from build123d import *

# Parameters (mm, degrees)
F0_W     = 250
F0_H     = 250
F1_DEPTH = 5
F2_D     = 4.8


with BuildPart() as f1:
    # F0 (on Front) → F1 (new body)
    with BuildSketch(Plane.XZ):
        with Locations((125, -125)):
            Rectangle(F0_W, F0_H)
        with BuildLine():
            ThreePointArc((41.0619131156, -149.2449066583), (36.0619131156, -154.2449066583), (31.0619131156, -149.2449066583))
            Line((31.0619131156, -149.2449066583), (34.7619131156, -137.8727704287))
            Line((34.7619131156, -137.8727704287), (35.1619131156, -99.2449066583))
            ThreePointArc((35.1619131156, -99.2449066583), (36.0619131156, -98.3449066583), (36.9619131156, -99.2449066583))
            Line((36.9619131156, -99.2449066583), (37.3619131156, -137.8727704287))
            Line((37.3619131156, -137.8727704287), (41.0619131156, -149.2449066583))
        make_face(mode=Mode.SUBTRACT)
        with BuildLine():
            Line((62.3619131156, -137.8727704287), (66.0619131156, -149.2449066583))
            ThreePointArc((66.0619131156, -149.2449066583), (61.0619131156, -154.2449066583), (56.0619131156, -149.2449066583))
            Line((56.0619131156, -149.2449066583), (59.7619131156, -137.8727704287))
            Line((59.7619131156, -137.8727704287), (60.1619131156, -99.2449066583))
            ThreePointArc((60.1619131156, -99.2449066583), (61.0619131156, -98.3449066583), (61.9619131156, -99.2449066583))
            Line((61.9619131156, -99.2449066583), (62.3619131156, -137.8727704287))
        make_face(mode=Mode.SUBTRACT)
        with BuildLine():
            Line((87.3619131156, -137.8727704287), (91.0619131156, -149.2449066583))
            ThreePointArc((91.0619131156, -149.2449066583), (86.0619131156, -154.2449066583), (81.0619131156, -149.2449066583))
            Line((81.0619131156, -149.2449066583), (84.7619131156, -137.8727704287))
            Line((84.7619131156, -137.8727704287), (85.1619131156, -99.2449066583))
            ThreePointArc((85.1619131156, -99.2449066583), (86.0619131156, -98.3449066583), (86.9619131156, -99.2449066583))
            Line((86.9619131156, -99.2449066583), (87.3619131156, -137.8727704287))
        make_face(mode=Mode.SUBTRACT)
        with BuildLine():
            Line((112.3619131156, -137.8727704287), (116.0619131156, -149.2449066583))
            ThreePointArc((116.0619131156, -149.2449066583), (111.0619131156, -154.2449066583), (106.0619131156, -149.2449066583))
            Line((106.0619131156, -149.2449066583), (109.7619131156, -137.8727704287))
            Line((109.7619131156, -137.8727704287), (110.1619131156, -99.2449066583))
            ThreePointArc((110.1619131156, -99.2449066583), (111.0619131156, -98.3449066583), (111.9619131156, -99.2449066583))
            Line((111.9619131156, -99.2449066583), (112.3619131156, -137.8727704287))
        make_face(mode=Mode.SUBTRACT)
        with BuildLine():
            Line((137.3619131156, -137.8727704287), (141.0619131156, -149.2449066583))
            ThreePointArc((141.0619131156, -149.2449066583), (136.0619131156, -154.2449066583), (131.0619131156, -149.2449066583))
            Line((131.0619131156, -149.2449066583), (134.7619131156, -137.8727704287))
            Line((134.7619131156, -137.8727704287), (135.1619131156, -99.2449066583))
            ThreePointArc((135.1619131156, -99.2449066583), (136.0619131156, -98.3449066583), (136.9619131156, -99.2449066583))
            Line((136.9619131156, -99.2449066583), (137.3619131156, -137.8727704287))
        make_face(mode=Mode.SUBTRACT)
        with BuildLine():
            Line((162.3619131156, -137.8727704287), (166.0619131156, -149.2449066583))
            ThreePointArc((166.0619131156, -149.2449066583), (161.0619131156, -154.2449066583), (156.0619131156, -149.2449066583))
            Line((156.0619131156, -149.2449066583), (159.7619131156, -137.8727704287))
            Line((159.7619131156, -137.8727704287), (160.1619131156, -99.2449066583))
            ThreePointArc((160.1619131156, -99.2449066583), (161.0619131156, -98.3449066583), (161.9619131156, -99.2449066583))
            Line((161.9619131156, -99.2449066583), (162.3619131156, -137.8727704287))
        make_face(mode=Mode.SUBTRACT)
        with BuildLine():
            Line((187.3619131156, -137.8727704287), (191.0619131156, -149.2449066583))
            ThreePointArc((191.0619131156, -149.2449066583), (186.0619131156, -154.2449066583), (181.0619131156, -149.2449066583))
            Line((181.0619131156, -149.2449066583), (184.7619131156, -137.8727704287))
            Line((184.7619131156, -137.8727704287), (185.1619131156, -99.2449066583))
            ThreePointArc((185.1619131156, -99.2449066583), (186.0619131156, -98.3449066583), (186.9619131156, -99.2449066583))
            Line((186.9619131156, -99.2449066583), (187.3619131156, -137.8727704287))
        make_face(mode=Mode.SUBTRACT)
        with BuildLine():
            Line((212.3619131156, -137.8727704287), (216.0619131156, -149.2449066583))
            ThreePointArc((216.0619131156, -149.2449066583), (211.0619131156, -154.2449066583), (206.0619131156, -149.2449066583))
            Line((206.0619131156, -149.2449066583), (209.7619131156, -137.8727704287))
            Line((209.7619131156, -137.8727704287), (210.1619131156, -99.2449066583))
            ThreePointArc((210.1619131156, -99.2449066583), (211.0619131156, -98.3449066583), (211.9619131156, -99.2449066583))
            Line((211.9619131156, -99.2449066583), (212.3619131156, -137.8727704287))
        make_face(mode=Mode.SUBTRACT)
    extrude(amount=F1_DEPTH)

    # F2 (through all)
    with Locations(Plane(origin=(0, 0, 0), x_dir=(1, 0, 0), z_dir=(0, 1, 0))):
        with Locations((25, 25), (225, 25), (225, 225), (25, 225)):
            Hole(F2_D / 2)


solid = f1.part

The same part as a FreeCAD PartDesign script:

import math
import FreeCAD as App
import Part
import Sketcher
from FreeCAD import Vector
Q = App.Units.Quantity


def add_polygon(sketch, points):
    """Adds a closed chain of lines whose ends are joined by coincident constraints."""
    first, n = sketch.GeometryCount, len(points)
    for a, b in zip(points, points[1:] + points[:1]):
        sketch.addGeometry(Part.LineSegment(App.Vector(*a, 0), App.Vector(*b, 0)), False)
    for i in range(n):
        sketch.addConstraint(Sketcher.Constraint("Coincident", first + i, 2, first + (i + 1) % n, 1))

doc = App.newDocument("Part")
body = doc.addObject("PartDesign::Body", "Body")

sketch1 = body.newObject("Sketcher::SketchObject", "Sketch")
sketch1.AttachmentSupport = (doc.getObject("XZ_Plane"), [""])
sketch1.MapMode = "FlatFace"
add_polygon(sketch1, [(0, 0), (0, -250), (250, -250), (250, 0)])
sketch1.addGeometry(Part.LineSegment(Vector(37.4, -137.9, 0), Vector(41.1, -149.2, 0)), False)
sketch1.addGeometry(Part.ArcOfCircle(Part.Circle(Vector(36.1, -149.2, 0), Vector(0, 0, 1), 5), math.radians(180), math.radians(360)), False)
sketch1.addGeometry(Part.LineSegment(Vector(31.1, -149.2, 0), Vector(34.8, -137.9, 0)), False)
sketch1.addGeometry(Part.LineSegment(Vector(34.8, -137.9, 0), Vector(35.2, -99.2, 0)), False)
sketch1.addGeometry(Part.ArcOfCircle(Part.Circle(Vector(36.1, -99.2, 0), Vector(0, 0, 1), 0.9), math.radians(0), math.radians(180)), False)
sketch1.addGeometry(Part.LineSegment(Vector(37, -99.2, 0), Vector(37.4, -137.9, 0)), False)
sketch1.addGeometry(Part.LineSegment(Vector(137, -99.2, 0), Vector(137.4, -137.9, 0)), False)
sketch1.addGeometry(Part.LineSegment(Vector(137.4, -137.9, 0), Vector(141.1, -149.2, 0)), False)
sketch1.addGeometry(Part.ArcOfCircle(Part.Circle(Vector(136.1, -149.2, 0), Vector(0, 0, 1), 5), math.radians(180), math.radians(360)), False)
sketch1.addGeometry(Part.LineSegment(Vector(131.1, -149.2, 0), Vector(134.8, -137.9, 0)), False)
sketch1.addGeometry(Part.LineSegment(Vector(134.8, -137.9, 0), Vector(135.2, -99.2, 0)), False)
sketch1.addGeometry(Part.ArcOfCircle(Part.Circle(Vector(136.1, -99.2, 0), Vector(0, 0, 1), 0.9), math.radians(0), math.radians(180)), False)
sketch1.addGeometry(Part.LineSegment(Vector(162, -99.2, 0), Vector(162.4, -137.9, 0)), False)
sketch1.addGeometry(Part.LineSegment(Vector(162.4, -137.9, 0), Vector(166.1, -149.2, 0)), False)
sketch1.addGeometry(Part.ArcOfCircle(Part.Circle(Vector(161.1, -149.2, 0), Vector(0, 0, 1), 5), math.radians(180), math.radians(360)), False)
sketch1.addGeometry(Part.LineSegment(Vector(156.1, -149.2, 0), Vector(159.8, -137.9, 0)), False)
sketch1.addGeometry(Part.LineSegment(Vector(159.8, -137.9, 0), Vector(160.2, -99.2, 0)), False)
sketch1.addGeometry(Part.ArcOfCircle(Part.Circle(Vector(161.1, -99.2, 0), Vector(0, 0, 1), 0.9), math.radians(0), math.radians(180)), False)
sketch1.addGeometry(Part.LineSegment(Vector(187, -99.2, 0), Vector(187.4, -137.9, 0)), False)
sketch1.addGeometry(Part.LineSegment(Vector(187.4, -137.9, 0), Vector(191.1, -149.2, 0)), False)
sketch1.addGeometry(Part.ArcOfCircle(Part.Circle(Vector(186.1, -149.2, 0), Vector(0, 0, 1), 5), math.radians(180), math.radians(360)), False)
sketch1.addGeometry(Part.LineSegment(Vector(181.1, -149.2, 0), Vector(184.8, -137.9, 0)), False)
sketch1.addGeometry(Part.LineSegment(Vector(184.8, -137.9, 0), Vector(185.2, -99.2, 0)), False)
sketch1.addGeometry(Part.ArcOfCircle(Part.Circle(Vector(186.1, -99.2, 0), Vector(0, 0, 1), 0.9), math.radians(0), math.radians(180)), False)
sketch1.addGeometry(Part.LineSegment(Vector(212, -99.2, 0), Vector(212.4, -137.9, 0)), False)
sketch1.addGeometry(Part.LineSegment(Vector(212.4, -137.9, 0), Vector(216.1, -149.2, 0)), False)
sketch1.addGeometry(Part.ArcOfCircle(Part.Circle(Vector(211.1, -149.2, 0), Vector(0, 0, 1), 5), math.radians(180), math.radians(360)), False)
sketch1.addGeometry(Part.LineSegment(Vector(206.1, -149.2, 0), Vector(209.8, -137.9, 0)), False)
sketch1.addGeometry(Part.LineSegment(Vector(209.8, -137.9, 0), Vector(210.2, -99.2, 0)), False)
sketch1.addGeometry(Part.ArcOfCircle(Part.Circle(Vector(211.1, -99.2, 0), Vector(0, 0, 1), 0.9), math.radians(0), math.radians(180)), False)
sketch1.addGeometry(Part.LineSegment(Vector(62, -99.2, 0), Vector(62.4, -137.9, 0)), False)
sketch1.addGeometry(Part.LineSegment(Vector(62.4, -137.9, 0), Vector(66.1, -149.2, 0)), False)
sketch1.addGeometry(Part.ArcOfCircle(Part.Circle(Vector(61.1, -149.2, 0), Vector(0, 0, 1), 5), math.radians(180), math.radians(360)), False)
sketch1.addGeometry(Part.LineSegment(Vector(56.1, -149.2, 0), Vector(59.8, -137.9, 0)), False)
sketch1.addGeometry(Part.LineSegment(Vector(59.8, -137.9, 0), Vector(60.2, -99.2, 0)), False)
sketch1.addGeometry(Part.ArcOfCircle(Part.Circle(Vector(61.1, -99.2, 0), Vector(0, 0, 1), 0.9), math.radians(0), math.radians(180)), False)
sketch1.addGeometry(Part.LineSegment(Vector(87, -99.2, 0), Vector(87.4, -137.9, 0)), False)
sketch1.addGeometry(Part.LineSegment(Vector(87.4, -137.9, 0), Vector(91.1, -149.2, 0)), False)
sketch1.addGeometry(Part.ArcOfCircle(Part.Circle(Vector(86.1, -149.2, 0), Vector(0, 0, 1), 5), math.radians(180), math.radians(360)), False)
sketch1.addGeometry(Part.LineSegment(Vector(81.1, -149.2, 0), Vector(84.8, -137.9, 0)), False)
sketch1.addGeometry(Part.LineSegment(Vector(84.8, -137.9, 0), Vector(85.2, -99.2, 0)), False)
sketch1.addGeometry(Part.ArcOfCircle(Part.Circle(Vector(86.1, -99.2, 0), Vector(0, 0, 1), 0.9), math.radians(0), math.radians(180)), False)
sketch1.addGeometry(Part.LineSegment(Vector(112, -99.2, 0), Vector(112.4, -137.9, 0)), False)
sketch1.addGeometry(Part.LineSegment(Vector(112.4, -137.9, 0), Vector(116.1, -149.2, 0)), False)
sketch1.addGeometry(Part.ArcOfCircle(Part.Circle(Vector(111.1, -149.2, 0), Vector(0, 0, 1), 5), math.radians(180), math.radians(360)), False)
sketch1.addGeometry(Part.LineSegment(Vector(106.1, -149.2, 0), Vector(109.8, -137.9, 0)), False)
sketch1.addGeometry(Part.LineSegment(Vector(109.8, -137.9, 0), Vector(110.2, -99.2, 0)), False)
sketch1.addGeometry(Part.ArcOfCircle(Part.Circle(Vector(111.1, -99.2, 0), Vector(0, 0, 1), 0.9), math.radians(0), math.radians(180)), False)
sketch1.addConstraint([
    Sketcher.Constraint("Coincident", 4, 2, 5, 2),
    Sketcher.Constraint("Coincident", 5, 1, 6, 1),
    Sketcher.Constraint("Coincident", 6, 2, 7, 1),
    Sketcher.Constraint("Coincident", 7, 2, 8, 2),
    Sketcher.Constraint("Coincident", 8, 1, 9, 1),
    Sketcher.Constraint("Coincident", 9, 2, 4, 1),
    Sketcher.Constraint("Coincident", 10, 2, 11, 1),
    Sketcher.Constraint("Coincident", 11, 2, 12, 2),
    Sketcher.Constraint("Coincident", 12, 1, 13, 1),
    Sketcher.Constraint("Coincident", 13, 2, 14, 1),
    Sketcher.Constraint("Coincident", 14, 2, 15, 2),
    Sketcher.Constraint("Coincident", 15, 1, 10, 1),
    Sketcher.Constraint("Coincident", 16, 2, 17, 1),
    Sketcher.Constraint("Coincident", 17, 2, 18, 2),
    Sketcher.Constraint("Coincident", 18, 1, 19, 1),
    Sketcher.Constraint("Coincident", 19, 2, 20, 1),
    Sketcher.Constraint("Coincident", 20, 2, 21, 2),
    Sketcher.Constraint("Coincident", 21, 1, 16, 1),
    Sketcher.Constraint("Coincident", 22, 2, 23, 1),
    Sketcher.Constraint("Coincident", 23, 2, 24, 2),
    Sketcher.Constraint("Coincident", 24, 1, 25, 1),
    Sketcher.Constraint("Coincident", 25, 2, 26, 1),
    Sketcher.Constraint("Coincident", 26, 2, 27, 2),
    Sketcher.Constraint("Coincident", 27, 1, 22, 1),
    Sketcher.Constraint("Coincident", 28, 2, 29, 1),
    Sketcher.Constraint("Coincident", 29, 2, 30, 2),
    Sketcher.Constraint("Coincident", 30, 1, 31, 1),
    Sketcher.Constraint("Coincident", 31, 2, 32, 1),
    Sketcher.Constraint("Coincident", 32, 2, 33, 2),
    Sketcher.Constraint("Coincident", 33, 1, 28, 1),
    Sketcher.Constraint("Coincident", 34, 2, 35, 1),
    Sketcher.Constraint("Coincident", 35, 2, 36, 2),
    Sketcher.Constraint("Coincident", 36, 1, 37, 1),
    Sketcher.Constraint("Coincident", 37, 2, 38, 1),
    Sketcher.Constraint("Coincident", 38, 2, 39, 2),
    Sketcher.Constraint("Coincident", 39, 1, 34, 1),
    Sketcher.Constraint("Coincident", 40, 2, 41, 1),
    Sketcher.Constraint("Coincident", 41, 2, 42, 2),
    Sketcher.Constraint("Coincident", 42, 1, 43, 1),
    Sketcher.Constraint("Coincident", 43, 2, 44, 1),
    Sketcher.Constraint("Coincident", 44, 2, 45, 2),
    Sketcher.Constraint("Coincident", 45, 1, 40, 1),
    Sketcher.Constraint("Coincident", 46, 2, 47, 1),
    Sketcher.Constraint("Coincident", 47, 2, 48, 2),
    Sketcher.Constraint("Coincident", 48, 1, 49, 1),
    Sketcher.Constraint("Coincident", 49, 2, 50, 1),
    Sketcher.Constraint("Coincident", 50, 2, 51, 2),
    Sketcher.Constraint("Coincident", 51, 1, 46, 1),
    Sketcher.Constraint("Vertical", 0),
    Sketcher.Constraint("Horizontal", 1),
    Sketcher.Constraint("Vertical", 2),
    Sketcher.Constraint("Horizontal", 3),
    Sketcher.Constraint("Coincident", 3, 2, -1, 1),
    Sketcher.Constraint("Equal", 5, 12),
    Sketcher.Constraint("Equal", 8, 15),
    Sketcher.Constraint("Equal", 12, 18),
    Sketcher.Constraint("Equal", 15, 21),
    Sketcher.Constraint("Equal", 18, 24),
    Sketcher.Constraint("Equal", 21, 27),
    Sketcher.Constraint("Equal", 24, 30),
    Sketcher.Constraint("Equal", 27, 33),
    Sketcher.Constraint("Equal", 30, 36),
    Sketcher.Constraint("Equal", 33, 39),
    Sketcher.Constraint("Equal", 36, 42),
    Sketcher.Constraint("Equal", 39, 45),
    Sketcher.Constraint("Equal", 42, 48),
    Sketcher.Constraint("Equal", 45, 51),
    Sketcher.Constraint("Parallel", 9, 10),
    Sketcher.Constraint("Parallel", 4, 11),
    Sketcher.Constraint("Parallel", 6, 13),
    Sketcher.Constraint("Parallel", 7, 14),
    Sketcher.Constraint("Parallel", 10, 16),
    Sketcher.Constraint("Parallel", 11, 17),
    Sketcher.Constraint("Parallel", 13, 19),
    Sketcher.Constraint("Parallel", 14, 20),
    Sketcher.Constraint("Parallel", 16, 22),
    Sketcher.Constraint("Parallel", 17, 23),
    Sketcher.Constraint("Parallel", 19, 25),
    Sketcher.Constraint("Parallel", 20, 26),
    Sketcher.Constraint("Parallel", 22, 28),
    Sketcher.Constraint("Parallel", 23, 29),
    Sketcher.Constraint("Parallel", 25, 31),
    Sketcher.Constraint("Parallel", 26, 32),
    Sketcher.Constraint("Parallel", 28, 34),
    Sketcher.Constraint("Parallel", 29, 35),
    Sketcher.Constraint("Parallel", 31, 37),
    Sketcher.Constraint("Parallel", 32, 38),
    Sketcher.Constraint("Parallel", 34, 40),
    Sketcher.Constraint("Parallel", 35, 41),
    Sketcher.Constraint("Parallel", 37, 43),
    Sketcher.Constraint("Parallel", 38, 44),
    Sketcher.Constraint("Parallel", 40, 46),
    Sketcher.Constraint("Parallel", 41, 47),
    Sketcher.Constraint("Parallel", 43, 49),
    Sketcher.Constraint("Parallel", 44, 50),
    Sketcher.Constraint("Horizontal", 5, 3, 12, 3),
    Sketcher.Constraint("Horizontal", 8, 3, 15, 3),
    Sketcher.Constraint("Horizontal", 12, 3, 18, 3),
    Sketcher.Constraint("Horizontal", 15, 3, 21, 3),
    Sketcher.Constraint("Horizontal", 18, 3, 24, 3),
    Sketcher.Constraint("Horizontal", 21, 3, 27, 3),
    Sketcher.Constraint("Horizontal", 24, 3, 30, 3),
    Sketcher.Constraint("Horizontal", 27, 3, 33, 3),
    Sketcher.Constraint("Horizontal", 30, 3, 36, 3),
    Sketcher.Constraint("Horizontal", 33, 3, 39, 3),
    Sketcher.Constraint("Horizontal", 36, 3, 42, 3),
    Sketcher.Constraint("Horizontal", 39, 3, 45, 3),
    Sketcher.Constraint("Horizontal", 42, 3, 48, 3),
    Sketcher.Constraint("Horizontal", 45, 3, 51, 3),
    Sketcher.Constraint("Horizontal", 48, 3, 4, 2),
    Sketcher.Constraint("Horizontal", 4, 2, 5, 1),
    Sketcher.Constraint("Horizontal", 51, 3, 7, 2),
    Sketcher.Constraint("Horizontal", 7, 2, 8, 1),
    Sketcher.Constraint("Horizontal", 6, 2, 9, 2),
    Sketcher.Constraint("Horizontal", 9, 2, 10, 2),
    Sketcher.Constraint("Horizontal", 5, 1, 11, 2),
    Sketcher.Constraint("Horizontal", 11, 2, 12, 1),
    Sketcher.Constraint("Horizontal", 10, 2, 13, 2),
    Sketcher.Constraint("Horizontal", 8, 1, 14, 2),
    Sketcher.Constraint("Horizontal", 13, 2, 16, 2),
    Sketcher.Constraint("Horizontal", 12, 1, 17, 2),
    Sketcher.Constraint("Horizontal", 17, 2, 18, 1),
    Sketcher.Constraint("Horizontal", 16, 2, 19, 2),
    Sketcher.Constraint("Horizontal", 15, 1, 20, 2),
    Sketcher.Constraint("Horizontal", 19, 2, 22, 2),
    Sketcher.Constraint("Horizontal", 18, 1, 23, 2),
    Sketcher.Constraint("Horizontal", 23, 2, 24, 1),
    Sketcher.Constraint("Horizontal", 22, 2, 25, 2),
    Sketcher.Constraint("Horizontal", 21, 1, 26, 2),
    Sketcher.Constraint("Horizontal", 25, 2, 28, 2),
    Sketcher.Constraint("Horizontal", 24, 1, 29, 2),
    Sketcher.Constraint("Horizontal", 29, 2, 30, 1),
    Sketcher.Constraint("Horizontal", 28, 2, 31, 2),
    Sketcher.Constraint("Horizontal", 27, 1, 32, 2),
    Sketcher.Constraint("Horizontal", 31, 2, 34, 2),
    Sketcher.Constraint("Horizontal", 30, 1, 35, 2),
    Sketcher.Constraint("Horizontal", 35, 2, 36, 1),
    Sketcher.Constraint("Horizontal", 34, 2, 37, 2),
    Sketcher.Constraint("Horizontal", 33, 1, 38, 2),
    Sketcher.Constraint("Horizontal", 37, 2, 40, 2),
    Sketcher.Constraint("Horizontal", 36, 1, 41, 2),
    Sketcher.Constraint("Horizontal", 41, 2, 42, 1),
    Sketcher.Constraint("Horizontal", 40, 2, 43, 2),
    Sketcher.Constraint("Horizontal", 39, 1, 44, 2),
    Sketcher.Constraint("Horizontal", 43, 2, 46, 2),
    Sketcher.Constraint("Horizontal", 42, 1, 47, 2),
    Sketcher.Constraint("Horizontal", 47, 2, 48, 1),
    Sketcher.Constraint("Horizontal", 46, 2, 49, 2),
    Sketcher.Constraint("Horizontal", 45, 1, 50, 2),
    Sketcher.Constraint("Vertical", 5, 3, 8, 3),
    Sketcher.Constraint("Equal", 3, 0),
    Sketcher.Constraint("Equal", 4, 6),
    Sketcher.Constraint("Radius", 5, Q("5 mm")),
    Sketcher.Constraint("Radius", 8, Q("0.9 mm")),
    Sketcher.Constraint("DistanceX", 1, 1, 1, 2, Q("250 mm")),
    Sketcher.Constraint("Distance", 4, Q("11.958908 mm")),
    Sketcher.Constraint("DistanceY", 6, 2, -1, 1, Q("137.87277 mm")),
    Sketcher.Constraint("Distance", 7, Q("38.629935 mm")),
    Sketcher.Constraint("DistanceX", -1, 1, 5, 3, Q("36.061913 mm")),
    Sketcher.Constraint("DistanceY", 5, 3, -1, 1, Q("149.244907 mm")),
    Sketcher.Constraint("DistanceX", -1, 1, 12, 3, Q("136.061913 mm")),
    Sketcher.Constraint("DistanceX", -1, 1, 18, 3, Q("161.061913 mm")),
    Sketcher.Constraint("DistanceX", -1, 1, 24, 3, Q("186.061913 mm")),
    Sketcher.Constraint("DistanceX", -1, 1, 30, 3, Q("211.061913 mm")),
    Sketcher.Constraint("DistanceX", -1, 1, 36, 3, Q("61.061913 mm")),
    Sketcher.Constraint("DistanceX", -1, 1, 42, 3, Q("86.061913 mm")),
    Sketcher.Constraint("DistanceX", -1, 1, 48, 3, Q("111.061913 mm")),
])
pad1 = body.newObject("PartDesign::Pad", "Pad")
pad1.Profile = sketch1
pad1.Length = 5

sketch2 = body.newObject("Sketcher::SketchObject", "Sketch001")
sketch2.AttachmentSupport = (doc.getObject("XZ_Plane"), [""])
sketch2.MapMode = "FlatFace"
sketch2.addGeometry([
    Part.Circle(Vector(25, -25, 0), Vector(0, 0, 1), 2.4),
    Part.Circle(Vector(225, -25, 0), Vector(0, 0, 1), 2.4),
    Part.Circle(Vector(225, -225, 0), Vector(0, 0, 1), 2.4),
    Part.Circle(Vector(25, -225, 0), Vector(0, 0, 1), 2.4),
], False)
sketch2.addConstraint([
    Sketcher.Constraint("Equal", 0, 1),
    Sketcher.Constraint("Equal", 1, 2),
    Sketcher.Constraint("Equal", 2, 3),
    Sketcher.Constraint("Horizontal", 0, 3, 1, 3),
    Sketcher.Constraint("Horizontal", 2, 3, 3, 3),
    Sketcher.Constraint("Vertical", 1, 3, 2, 3),
    Sketcher.Constraint("Vertical", 0, 3, 3, 3),
    Sketcher.Constraint("Diameter", 0, Q("4.8 mm")),
    Sketcher.Constraint("DistanceX", -1, 1, 0, 3, Q("25 mm")),
    Sketcher.Constraint("DistanceY", 0, 3, -1, 1, Q("25 mm")),
    Sketcher.Constraint("DistanceX", -1, 1, 1, 3, Q("225 mm")),
    Sketcher.Constraint("DistanceY", 2, 3, -1, 1, Q("225 mm")),
])
doc.recompute()
hole = body.newObject("PartDesign::Hole", "Hole")
hole.Profile = sketch2
hole.ThreadType = "None"
hole.Diameter = 4.8
hole.DepthType = "ThroughAll"
hole.Reversed = True

doc.recompute()
